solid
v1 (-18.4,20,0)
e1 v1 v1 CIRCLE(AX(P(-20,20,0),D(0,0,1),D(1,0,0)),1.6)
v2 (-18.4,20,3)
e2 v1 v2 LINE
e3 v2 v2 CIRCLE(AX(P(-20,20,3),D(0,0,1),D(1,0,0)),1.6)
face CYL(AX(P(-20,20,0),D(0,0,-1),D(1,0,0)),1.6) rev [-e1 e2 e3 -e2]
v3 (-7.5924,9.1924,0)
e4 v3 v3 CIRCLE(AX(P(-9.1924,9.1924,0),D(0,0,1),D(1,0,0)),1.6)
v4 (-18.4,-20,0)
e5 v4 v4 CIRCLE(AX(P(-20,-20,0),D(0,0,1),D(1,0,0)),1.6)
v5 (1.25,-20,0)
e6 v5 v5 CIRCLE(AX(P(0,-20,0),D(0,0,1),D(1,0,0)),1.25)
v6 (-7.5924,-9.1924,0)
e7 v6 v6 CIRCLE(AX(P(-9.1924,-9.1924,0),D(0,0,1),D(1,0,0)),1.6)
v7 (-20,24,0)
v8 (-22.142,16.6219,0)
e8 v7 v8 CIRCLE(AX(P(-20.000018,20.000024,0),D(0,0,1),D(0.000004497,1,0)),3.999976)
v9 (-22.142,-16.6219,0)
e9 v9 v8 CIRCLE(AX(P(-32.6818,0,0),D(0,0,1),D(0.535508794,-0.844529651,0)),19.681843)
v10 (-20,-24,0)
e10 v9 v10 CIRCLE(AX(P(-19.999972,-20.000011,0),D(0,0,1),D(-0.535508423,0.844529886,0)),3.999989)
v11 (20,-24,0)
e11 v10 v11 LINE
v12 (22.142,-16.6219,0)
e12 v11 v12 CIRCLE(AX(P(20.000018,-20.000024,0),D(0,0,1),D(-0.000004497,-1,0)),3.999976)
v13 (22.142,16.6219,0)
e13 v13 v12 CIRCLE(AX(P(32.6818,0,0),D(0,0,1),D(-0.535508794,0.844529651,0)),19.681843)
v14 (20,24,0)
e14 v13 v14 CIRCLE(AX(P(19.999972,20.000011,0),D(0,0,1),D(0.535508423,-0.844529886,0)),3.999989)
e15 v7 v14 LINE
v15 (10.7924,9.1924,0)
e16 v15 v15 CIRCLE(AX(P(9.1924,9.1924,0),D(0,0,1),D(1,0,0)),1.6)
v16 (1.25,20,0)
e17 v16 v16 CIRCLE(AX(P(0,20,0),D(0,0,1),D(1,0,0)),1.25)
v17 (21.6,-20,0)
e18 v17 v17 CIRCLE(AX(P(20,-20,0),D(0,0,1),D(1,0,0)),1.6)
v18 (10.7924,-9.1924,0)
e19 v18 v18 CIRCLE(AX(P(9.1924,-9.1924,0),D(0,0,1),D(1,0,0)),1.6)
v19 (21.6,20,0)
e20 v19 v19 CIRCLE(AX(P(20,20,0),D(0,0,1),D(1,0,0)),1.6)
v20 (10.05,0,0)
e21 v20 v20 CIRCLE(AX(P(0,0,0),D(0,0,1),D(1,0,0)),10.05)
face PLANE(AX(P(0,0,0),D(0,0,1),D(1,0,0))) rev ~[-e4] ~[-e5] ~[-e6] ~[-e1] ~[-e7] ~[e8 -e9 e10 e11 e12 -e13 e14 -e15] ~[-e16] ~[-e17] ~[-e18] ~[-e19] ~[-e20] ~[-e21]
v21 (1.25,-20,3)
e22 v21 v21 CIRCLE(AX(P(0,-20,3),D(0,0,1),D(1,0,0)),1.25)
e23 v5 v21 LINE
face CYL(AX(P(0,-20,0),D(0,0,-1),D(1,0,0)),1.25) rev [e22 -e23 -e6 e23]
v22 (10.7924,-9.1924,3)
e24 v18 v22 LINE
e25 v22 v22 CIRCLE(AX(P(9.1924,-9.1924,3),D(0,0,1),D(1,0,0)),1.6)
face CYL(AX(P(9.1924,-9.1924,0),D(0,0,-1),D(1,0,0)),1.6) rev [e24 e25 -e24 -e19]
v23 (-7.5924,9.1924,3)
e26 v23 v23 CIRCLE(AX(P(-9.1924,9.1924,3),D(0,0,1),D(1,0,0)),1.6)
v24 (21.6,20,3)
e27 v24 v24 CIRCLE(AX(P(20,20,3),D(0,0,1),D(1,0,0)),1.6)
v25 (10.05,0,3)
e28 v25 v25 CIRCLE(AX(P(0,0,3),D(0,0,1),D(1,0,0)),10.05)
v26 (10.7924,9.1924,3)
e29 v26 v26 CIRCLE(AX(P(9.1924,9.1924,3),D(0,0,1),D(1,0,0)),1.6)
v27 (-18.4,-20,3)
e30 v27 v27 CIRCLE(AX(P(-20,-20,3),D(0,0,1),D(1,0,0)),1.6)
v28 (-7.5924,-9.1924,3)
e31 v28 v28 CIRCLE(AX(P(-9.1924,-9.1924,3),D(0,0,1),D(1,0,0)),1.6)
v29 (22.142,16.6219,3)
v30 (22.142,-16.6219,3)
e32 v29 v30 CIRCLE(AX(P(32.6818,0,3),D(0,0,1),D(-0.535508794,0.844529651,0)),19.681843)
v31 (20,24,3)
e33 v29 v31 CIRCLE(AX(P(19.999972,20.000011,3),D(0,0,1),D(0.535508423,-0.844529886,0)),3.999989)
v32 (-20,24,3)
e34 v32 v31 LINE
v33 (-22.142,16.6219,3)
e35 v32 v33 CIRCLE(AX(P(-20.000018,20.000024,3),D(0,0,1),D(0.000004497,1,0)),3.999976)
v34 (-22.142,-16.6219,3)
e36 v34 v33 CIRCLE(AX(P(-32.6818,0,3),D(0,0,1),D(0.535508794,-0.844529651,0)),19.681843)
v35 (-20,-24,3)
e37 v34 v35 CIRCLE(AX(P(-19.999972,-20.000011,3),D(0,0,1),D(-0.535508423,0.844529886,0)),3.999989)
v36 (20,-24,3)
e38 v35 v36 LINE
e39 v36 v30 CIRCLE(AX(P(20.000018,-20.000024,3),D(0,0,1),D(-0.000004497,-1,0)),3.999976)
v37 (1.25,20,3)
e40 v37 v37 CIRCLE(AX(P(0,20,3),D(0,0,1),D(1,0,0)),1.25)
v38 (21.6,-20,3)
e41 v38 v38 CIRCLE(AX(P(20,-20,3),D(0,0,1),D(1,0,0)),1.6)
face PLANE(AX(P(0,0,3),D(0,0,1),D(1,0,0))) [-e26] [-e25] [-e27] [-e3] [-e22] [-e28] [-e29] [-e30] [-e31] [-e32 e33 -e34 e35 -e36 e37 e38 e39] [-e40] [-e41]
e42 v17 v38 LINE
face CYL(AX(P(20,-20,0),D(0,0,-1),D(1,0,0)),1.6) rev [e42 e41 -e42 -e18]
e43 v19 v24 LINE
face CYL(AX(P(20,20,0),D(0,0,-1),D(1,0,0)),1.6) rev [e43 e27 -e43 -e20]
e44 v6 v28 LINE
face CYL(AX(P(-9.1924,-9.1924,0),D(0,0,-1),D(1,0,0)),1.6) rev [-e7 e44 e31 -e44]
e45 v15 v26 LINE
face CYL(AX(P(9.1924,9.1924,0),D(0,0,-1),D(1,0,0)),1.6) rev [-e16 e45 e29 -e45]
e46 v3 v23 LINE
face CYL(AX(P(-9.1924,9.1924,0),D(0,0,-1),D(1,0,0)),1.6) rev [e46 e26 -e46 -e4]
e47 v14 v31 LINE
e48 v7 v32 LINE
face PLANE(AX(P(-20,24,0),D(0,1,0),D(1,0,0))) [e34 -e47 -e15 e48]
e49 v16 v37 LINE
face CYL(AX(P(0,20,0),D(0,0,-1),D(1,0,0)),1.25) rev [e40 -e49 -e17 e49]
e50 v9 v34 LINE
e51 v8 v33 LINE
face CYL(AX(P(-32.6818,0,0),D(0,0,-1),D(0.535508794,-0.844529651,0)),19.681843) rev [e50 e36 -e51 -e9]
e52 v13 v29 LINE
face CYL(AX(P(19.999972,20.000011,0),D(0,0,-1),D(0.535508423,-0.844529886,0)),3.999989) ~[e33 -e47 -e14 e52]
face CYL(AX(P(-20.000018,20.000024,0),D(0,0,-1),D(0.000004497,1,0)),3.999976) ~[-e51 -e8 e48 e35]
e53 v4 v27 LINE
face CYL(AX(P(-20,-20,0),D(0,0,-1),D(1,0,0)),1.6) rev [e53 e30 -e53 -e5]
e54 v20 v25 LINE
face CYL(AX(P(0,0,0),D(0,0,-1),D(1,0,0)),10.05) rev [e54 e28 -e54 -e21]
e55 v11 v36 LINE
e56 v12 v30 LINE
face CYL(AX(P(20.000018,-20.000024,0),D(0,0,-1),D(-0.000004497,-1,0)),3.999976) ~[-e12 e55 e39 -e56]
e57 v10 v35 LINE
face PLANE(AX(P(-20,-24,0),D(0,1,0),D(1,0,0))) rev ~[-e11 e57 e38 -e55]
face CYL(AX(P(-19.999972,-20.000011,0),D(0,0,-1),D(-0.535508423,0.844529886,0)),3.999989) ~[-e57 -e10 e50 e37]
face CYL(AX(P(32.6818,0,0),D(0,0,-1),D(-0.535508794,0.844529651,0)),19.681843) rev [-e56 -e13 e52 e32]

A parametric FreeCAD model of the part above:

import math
import FreeCAD as App
import Part
import Sketcher
from FreeCAD import Vector
Q = App.Units.Quantity

doc = App.newDocument("Part")
params = doc.addObject("Spreadsheet::Sheet", "Params")
for row, (alias, value) in enumerate([
    ("sketch1_radius", "4 mm"),
    ("sketch1_diameter", "3.2 mm"),
    ("sketch1_diameter2", "2.5 mm"),
    ("sketch1_diameter3", "20.1 mm"),
    ("sketch1_width", "40 mm"),
    ("pad1_length", "3 mm"),
], start=1):
    params.set(f"A{row}", alias)
    params.set(f"B{row}", "=" + value)
    params.setAlias(f"B{row}", alias)

body = doc.addObject("PartDesign::Body", "Body")

sketch1 = body.newObject("Sketcher::SketchObject", "Sketch")
sketch1.AttachmentSupport = (doc.getObject("XY_Plane"), [""])
sketch1.MapMode = "FlatFace"
sketch1.addGeometry(Part.LineSegment(Vector(20, 24, 0), Vector(-20, 24, 0)), False)
sketch1.addGeometry(Part.ArcOfCircle(Part.Circle(Vector(-20, 20, 0), Vector(0, 0, 1), 4), math.radians(90), math.radians(238)), False)
sketch1.addGeometry(Part.ArcOfCircle(Part.Circle(Vector(-32.7, 0, 0), Vector(0, 0, 1), 19.7), math.radians(-58), math.radians(58)), False)
sketch1.addGeometry(Part.ArcOfCircle(Part.Circle(Vector(-20, -20, 0), Vector(0, 0, 1), 4), math.radians(122), math.radians(270)), False)
sketch1.addGeometry(Part.LineSegment(Vector(-20, -24, 0), Vector(20, -24, 0)), False)
sketch1.addGeometry(Part.ArcOfCircle(Part.Circle(Vector(20, -20, 0), Vector(0, 0, 1), 4), math.radians(-90), math.radians(58)), False)
sketch1.addGeometry(Part.ArcOfCircle(Part.Circle(Vector(32.7, 0, 0), Vector(0, 0, 1), 19.7), math.radians(122), math.radians(238)), False)
sketch1.addGeometry(Part.ArcOfCircle(Part.Circle(Vector(20, 20, 0), Vector(0, 0, 1), 4), math.radians(-58), math.radians(90)), False)
sketch1.addGeometry(Part.Circle(Vector(-20, -20, 0), Vector(0, 0, 1), 1.6), False)
sketch1.addGeometry(Part.Circle(Vector(-9.2, -9.2, 0), Vector(0, 0, 1), 1.6), False)
sketch1.addGeometry(Part.Circle(Vector(0, -20, 0), Vector(0, 0, 1), 1.2), False)
sketch1.addGeometry(Part.Circle(Vector(20, -20, 0), Vector(0, 0, 1), 1.6), False)
sketch1.addGeometry(Part.Circle(Vector(9.2, -9.2, 0), Vector(0, 0, 1), 1.6), False)
sketch1.addGeometry(Part.Circle(Vector(-9.2, 9.2, 0), Vector(0, 0, 1), 1.6), False)
sketch1.addGeometry(Part.Circle(Vector(-20, 20, 0), Vector(0, 0, 1), 1.6), False)
sketch1.addGeometry(Part.Circle(Vector(0, 0, 0), Vector(0, 0, 1), 10.1), False)
sketch1.addGeometry(Part.Circle(Vector(9.2, 9.2, 0), Vector(0, 0, 1), 1.6), False)
sketch1.addGeometry(Part.Circle(Vector(0, 20, 0), Vector(0, 0, 1), 1.2), False)
sketch1.addGeometry(Part.Circle(Vector(20, 20, 0), Vector(0, 0, 1), 1.6), False)
sketch1.addConstraint(Sketcher.Constraint("Tangent", 0, 2, 1, 1))
sketch1.addConstraint(Sketcher.Constraint("Tangent", 1, 2, 2, 2))
sketch1.addConstraint(Sketcher.Constraint("Tangent", 2, 1, 3, 1))
sketch1.addConstraint(Sketcher.Constraint("Tangent", 3, 2, 4, 1))
sketch1.addConstraint(Sketcher.Constraint("Tangent", 4, 2, 5, 1))
sketch1.addConstraint(Sketcher.Constraint("Tangent", 5, 2, 6, 2))
sketch1.addConstraint(Sketcher.Constraint("Tangent", 6, 1, 7, 1))
sketch1.addConstraint(Sketcher.Constraint("Tangent", 7, 2, 0, 1))
sketch1.addConstraint(Sketcher.Constraint("Horizontal", 0))
sketch1.addConstraint(Sketcher.Constraint("Horizontal", 4))
sketch1.addConstraint(Sketcher.Constraint("Coincident", 15, 3, -1, 1))
sketch1.addConstraint(Sketcher.Constraint("Coincident", 8, 3, 3, 3))
sketch1.addConstraint(Sketcher.Constraint("Coincident", 11, 3, 5, 3))
sketch1.addConstraint(Sketcher.Constraint("Coincident", 14, 3, 1, 3))
sketch1.addConstraint(Sketcher.Constraint("Coincident", 18, 3, 7, 3))
sketch1.addConstraint(Sketcher.Constraint("Equal", 1, 3))
sketch1.addConstraint(Sketcher.Constraint("Equal", 3, 5))
sketch1.addConstraint(Sketcher.Constraint("Equal", 2, 6))
sketch1.addConstraint(Sketcher.Constraint("Equal", 5, 7))
sketch1.addConstraint(Sketcher.Constraint("Equal", 8, 9))
sketch1.addConstraint(Sketcher.Constraint("Equal", 9, 11))
sketch1.addConstraint(Sketcher.Constraint("Equal", 11, 12))
sketch1.addConstraint(Sketcher.Constraint("Equal", 12, 13))
sketch1.addConstraint(Sketcher.Constraint("Equal", 13, 14))
sketch1.addConstraint(Sketcher.Constraint("Equal", 14, 16))
sketch1.addConstraint(Sketcher.Constraint("Equal", 10, 17))
sketch1.addConstraint(Sketcher.Constraint("Equal", 16, 18))
sketch1.addConstraint(Sketcher.Constraint("Symmetric", 1, 3, 5, 3, -1, 1))
sketch1.addConstraint(Sketcher.Constraint("Symmetric", 12, 3, 13, 3, -1, 1))
sketch1.addConstraint(Sketcher.Constraint("Symmetric", 9, 3, 16, 3, -1, 1))
sketch1.addConstraint(Sketcher.Constraint("Symmetric", 10, 3, 17, 3, -1, 1))
sketch1.addConstraint(Sketcher.Constraint("Symmetric", 2, 3, 6, 3, -2))
sketch1.addConstraint(Sketcher.Constraint("Symmetric", 9, 3, 12, 3, -2))
sketch1.addConstraint(Sketcher.Constraint("PointOnObject", 10, 3, -2))
sketch1.addConstraint(Sketcher.Constraint("Horizontal", 8, 3, 10, 3))
sketch1.addConstraint(Sketcher.Constraint("Radius", 1, Q("4 mm")))
sketch1.addConstraint(Sketcher.Constraint("Diameter", 8, Q("3.2 mm")))
sketch1.addConstraint(Sketcher.Constraint("Diameter", 10, Q("2.5 mm")))
sketch1.addConstraint(Sketcher.Constraint("Diameter", 15, Q("20.1 mm")))
sketch1.addConstraint(Sketcher.Constraint("DistanceX", 0, 2, 0, 1, Q("40 mm")))
sketch1.addConstraint(Sketcher.Constraint("DistanceY", 3, 3, 1, 3, Q("40 mm")))
sketch1.addConstraint(Sketcher.Constraint("Radius", 2, Q("19.6818 mm")))
sketch1.addConstraint(Sketcher.Constraint("DistanceX", 9, 3, -1, 1, Q("9.1924 mm")))
sketch1.addConstraint(Sketcher.Constraint("DistanceY", 9, 3, -1, 1, Q("9.1924 mm")))
sketch1.setExpression("Constraints[35]", "Params.sketch1_radius")
sketch1.setExpression("Constraints[36]", "Params.sketch1_diameter")
sketch1.setExpression("Constraints[37]", "Params.sketch1_diameter2")
sketch1.setExpression("Constraints[38]", "Params.sketch1_diameter3")
sketch1.setExpression("Constraints[39]", "Params.sketch1_width")
pad1 = body.newObject("PartDesign::Pad", "Pad")
pad1.Profile = sketch1
pad1.setExpression("Length", "Params.pad1_length")

doc.recompute()
